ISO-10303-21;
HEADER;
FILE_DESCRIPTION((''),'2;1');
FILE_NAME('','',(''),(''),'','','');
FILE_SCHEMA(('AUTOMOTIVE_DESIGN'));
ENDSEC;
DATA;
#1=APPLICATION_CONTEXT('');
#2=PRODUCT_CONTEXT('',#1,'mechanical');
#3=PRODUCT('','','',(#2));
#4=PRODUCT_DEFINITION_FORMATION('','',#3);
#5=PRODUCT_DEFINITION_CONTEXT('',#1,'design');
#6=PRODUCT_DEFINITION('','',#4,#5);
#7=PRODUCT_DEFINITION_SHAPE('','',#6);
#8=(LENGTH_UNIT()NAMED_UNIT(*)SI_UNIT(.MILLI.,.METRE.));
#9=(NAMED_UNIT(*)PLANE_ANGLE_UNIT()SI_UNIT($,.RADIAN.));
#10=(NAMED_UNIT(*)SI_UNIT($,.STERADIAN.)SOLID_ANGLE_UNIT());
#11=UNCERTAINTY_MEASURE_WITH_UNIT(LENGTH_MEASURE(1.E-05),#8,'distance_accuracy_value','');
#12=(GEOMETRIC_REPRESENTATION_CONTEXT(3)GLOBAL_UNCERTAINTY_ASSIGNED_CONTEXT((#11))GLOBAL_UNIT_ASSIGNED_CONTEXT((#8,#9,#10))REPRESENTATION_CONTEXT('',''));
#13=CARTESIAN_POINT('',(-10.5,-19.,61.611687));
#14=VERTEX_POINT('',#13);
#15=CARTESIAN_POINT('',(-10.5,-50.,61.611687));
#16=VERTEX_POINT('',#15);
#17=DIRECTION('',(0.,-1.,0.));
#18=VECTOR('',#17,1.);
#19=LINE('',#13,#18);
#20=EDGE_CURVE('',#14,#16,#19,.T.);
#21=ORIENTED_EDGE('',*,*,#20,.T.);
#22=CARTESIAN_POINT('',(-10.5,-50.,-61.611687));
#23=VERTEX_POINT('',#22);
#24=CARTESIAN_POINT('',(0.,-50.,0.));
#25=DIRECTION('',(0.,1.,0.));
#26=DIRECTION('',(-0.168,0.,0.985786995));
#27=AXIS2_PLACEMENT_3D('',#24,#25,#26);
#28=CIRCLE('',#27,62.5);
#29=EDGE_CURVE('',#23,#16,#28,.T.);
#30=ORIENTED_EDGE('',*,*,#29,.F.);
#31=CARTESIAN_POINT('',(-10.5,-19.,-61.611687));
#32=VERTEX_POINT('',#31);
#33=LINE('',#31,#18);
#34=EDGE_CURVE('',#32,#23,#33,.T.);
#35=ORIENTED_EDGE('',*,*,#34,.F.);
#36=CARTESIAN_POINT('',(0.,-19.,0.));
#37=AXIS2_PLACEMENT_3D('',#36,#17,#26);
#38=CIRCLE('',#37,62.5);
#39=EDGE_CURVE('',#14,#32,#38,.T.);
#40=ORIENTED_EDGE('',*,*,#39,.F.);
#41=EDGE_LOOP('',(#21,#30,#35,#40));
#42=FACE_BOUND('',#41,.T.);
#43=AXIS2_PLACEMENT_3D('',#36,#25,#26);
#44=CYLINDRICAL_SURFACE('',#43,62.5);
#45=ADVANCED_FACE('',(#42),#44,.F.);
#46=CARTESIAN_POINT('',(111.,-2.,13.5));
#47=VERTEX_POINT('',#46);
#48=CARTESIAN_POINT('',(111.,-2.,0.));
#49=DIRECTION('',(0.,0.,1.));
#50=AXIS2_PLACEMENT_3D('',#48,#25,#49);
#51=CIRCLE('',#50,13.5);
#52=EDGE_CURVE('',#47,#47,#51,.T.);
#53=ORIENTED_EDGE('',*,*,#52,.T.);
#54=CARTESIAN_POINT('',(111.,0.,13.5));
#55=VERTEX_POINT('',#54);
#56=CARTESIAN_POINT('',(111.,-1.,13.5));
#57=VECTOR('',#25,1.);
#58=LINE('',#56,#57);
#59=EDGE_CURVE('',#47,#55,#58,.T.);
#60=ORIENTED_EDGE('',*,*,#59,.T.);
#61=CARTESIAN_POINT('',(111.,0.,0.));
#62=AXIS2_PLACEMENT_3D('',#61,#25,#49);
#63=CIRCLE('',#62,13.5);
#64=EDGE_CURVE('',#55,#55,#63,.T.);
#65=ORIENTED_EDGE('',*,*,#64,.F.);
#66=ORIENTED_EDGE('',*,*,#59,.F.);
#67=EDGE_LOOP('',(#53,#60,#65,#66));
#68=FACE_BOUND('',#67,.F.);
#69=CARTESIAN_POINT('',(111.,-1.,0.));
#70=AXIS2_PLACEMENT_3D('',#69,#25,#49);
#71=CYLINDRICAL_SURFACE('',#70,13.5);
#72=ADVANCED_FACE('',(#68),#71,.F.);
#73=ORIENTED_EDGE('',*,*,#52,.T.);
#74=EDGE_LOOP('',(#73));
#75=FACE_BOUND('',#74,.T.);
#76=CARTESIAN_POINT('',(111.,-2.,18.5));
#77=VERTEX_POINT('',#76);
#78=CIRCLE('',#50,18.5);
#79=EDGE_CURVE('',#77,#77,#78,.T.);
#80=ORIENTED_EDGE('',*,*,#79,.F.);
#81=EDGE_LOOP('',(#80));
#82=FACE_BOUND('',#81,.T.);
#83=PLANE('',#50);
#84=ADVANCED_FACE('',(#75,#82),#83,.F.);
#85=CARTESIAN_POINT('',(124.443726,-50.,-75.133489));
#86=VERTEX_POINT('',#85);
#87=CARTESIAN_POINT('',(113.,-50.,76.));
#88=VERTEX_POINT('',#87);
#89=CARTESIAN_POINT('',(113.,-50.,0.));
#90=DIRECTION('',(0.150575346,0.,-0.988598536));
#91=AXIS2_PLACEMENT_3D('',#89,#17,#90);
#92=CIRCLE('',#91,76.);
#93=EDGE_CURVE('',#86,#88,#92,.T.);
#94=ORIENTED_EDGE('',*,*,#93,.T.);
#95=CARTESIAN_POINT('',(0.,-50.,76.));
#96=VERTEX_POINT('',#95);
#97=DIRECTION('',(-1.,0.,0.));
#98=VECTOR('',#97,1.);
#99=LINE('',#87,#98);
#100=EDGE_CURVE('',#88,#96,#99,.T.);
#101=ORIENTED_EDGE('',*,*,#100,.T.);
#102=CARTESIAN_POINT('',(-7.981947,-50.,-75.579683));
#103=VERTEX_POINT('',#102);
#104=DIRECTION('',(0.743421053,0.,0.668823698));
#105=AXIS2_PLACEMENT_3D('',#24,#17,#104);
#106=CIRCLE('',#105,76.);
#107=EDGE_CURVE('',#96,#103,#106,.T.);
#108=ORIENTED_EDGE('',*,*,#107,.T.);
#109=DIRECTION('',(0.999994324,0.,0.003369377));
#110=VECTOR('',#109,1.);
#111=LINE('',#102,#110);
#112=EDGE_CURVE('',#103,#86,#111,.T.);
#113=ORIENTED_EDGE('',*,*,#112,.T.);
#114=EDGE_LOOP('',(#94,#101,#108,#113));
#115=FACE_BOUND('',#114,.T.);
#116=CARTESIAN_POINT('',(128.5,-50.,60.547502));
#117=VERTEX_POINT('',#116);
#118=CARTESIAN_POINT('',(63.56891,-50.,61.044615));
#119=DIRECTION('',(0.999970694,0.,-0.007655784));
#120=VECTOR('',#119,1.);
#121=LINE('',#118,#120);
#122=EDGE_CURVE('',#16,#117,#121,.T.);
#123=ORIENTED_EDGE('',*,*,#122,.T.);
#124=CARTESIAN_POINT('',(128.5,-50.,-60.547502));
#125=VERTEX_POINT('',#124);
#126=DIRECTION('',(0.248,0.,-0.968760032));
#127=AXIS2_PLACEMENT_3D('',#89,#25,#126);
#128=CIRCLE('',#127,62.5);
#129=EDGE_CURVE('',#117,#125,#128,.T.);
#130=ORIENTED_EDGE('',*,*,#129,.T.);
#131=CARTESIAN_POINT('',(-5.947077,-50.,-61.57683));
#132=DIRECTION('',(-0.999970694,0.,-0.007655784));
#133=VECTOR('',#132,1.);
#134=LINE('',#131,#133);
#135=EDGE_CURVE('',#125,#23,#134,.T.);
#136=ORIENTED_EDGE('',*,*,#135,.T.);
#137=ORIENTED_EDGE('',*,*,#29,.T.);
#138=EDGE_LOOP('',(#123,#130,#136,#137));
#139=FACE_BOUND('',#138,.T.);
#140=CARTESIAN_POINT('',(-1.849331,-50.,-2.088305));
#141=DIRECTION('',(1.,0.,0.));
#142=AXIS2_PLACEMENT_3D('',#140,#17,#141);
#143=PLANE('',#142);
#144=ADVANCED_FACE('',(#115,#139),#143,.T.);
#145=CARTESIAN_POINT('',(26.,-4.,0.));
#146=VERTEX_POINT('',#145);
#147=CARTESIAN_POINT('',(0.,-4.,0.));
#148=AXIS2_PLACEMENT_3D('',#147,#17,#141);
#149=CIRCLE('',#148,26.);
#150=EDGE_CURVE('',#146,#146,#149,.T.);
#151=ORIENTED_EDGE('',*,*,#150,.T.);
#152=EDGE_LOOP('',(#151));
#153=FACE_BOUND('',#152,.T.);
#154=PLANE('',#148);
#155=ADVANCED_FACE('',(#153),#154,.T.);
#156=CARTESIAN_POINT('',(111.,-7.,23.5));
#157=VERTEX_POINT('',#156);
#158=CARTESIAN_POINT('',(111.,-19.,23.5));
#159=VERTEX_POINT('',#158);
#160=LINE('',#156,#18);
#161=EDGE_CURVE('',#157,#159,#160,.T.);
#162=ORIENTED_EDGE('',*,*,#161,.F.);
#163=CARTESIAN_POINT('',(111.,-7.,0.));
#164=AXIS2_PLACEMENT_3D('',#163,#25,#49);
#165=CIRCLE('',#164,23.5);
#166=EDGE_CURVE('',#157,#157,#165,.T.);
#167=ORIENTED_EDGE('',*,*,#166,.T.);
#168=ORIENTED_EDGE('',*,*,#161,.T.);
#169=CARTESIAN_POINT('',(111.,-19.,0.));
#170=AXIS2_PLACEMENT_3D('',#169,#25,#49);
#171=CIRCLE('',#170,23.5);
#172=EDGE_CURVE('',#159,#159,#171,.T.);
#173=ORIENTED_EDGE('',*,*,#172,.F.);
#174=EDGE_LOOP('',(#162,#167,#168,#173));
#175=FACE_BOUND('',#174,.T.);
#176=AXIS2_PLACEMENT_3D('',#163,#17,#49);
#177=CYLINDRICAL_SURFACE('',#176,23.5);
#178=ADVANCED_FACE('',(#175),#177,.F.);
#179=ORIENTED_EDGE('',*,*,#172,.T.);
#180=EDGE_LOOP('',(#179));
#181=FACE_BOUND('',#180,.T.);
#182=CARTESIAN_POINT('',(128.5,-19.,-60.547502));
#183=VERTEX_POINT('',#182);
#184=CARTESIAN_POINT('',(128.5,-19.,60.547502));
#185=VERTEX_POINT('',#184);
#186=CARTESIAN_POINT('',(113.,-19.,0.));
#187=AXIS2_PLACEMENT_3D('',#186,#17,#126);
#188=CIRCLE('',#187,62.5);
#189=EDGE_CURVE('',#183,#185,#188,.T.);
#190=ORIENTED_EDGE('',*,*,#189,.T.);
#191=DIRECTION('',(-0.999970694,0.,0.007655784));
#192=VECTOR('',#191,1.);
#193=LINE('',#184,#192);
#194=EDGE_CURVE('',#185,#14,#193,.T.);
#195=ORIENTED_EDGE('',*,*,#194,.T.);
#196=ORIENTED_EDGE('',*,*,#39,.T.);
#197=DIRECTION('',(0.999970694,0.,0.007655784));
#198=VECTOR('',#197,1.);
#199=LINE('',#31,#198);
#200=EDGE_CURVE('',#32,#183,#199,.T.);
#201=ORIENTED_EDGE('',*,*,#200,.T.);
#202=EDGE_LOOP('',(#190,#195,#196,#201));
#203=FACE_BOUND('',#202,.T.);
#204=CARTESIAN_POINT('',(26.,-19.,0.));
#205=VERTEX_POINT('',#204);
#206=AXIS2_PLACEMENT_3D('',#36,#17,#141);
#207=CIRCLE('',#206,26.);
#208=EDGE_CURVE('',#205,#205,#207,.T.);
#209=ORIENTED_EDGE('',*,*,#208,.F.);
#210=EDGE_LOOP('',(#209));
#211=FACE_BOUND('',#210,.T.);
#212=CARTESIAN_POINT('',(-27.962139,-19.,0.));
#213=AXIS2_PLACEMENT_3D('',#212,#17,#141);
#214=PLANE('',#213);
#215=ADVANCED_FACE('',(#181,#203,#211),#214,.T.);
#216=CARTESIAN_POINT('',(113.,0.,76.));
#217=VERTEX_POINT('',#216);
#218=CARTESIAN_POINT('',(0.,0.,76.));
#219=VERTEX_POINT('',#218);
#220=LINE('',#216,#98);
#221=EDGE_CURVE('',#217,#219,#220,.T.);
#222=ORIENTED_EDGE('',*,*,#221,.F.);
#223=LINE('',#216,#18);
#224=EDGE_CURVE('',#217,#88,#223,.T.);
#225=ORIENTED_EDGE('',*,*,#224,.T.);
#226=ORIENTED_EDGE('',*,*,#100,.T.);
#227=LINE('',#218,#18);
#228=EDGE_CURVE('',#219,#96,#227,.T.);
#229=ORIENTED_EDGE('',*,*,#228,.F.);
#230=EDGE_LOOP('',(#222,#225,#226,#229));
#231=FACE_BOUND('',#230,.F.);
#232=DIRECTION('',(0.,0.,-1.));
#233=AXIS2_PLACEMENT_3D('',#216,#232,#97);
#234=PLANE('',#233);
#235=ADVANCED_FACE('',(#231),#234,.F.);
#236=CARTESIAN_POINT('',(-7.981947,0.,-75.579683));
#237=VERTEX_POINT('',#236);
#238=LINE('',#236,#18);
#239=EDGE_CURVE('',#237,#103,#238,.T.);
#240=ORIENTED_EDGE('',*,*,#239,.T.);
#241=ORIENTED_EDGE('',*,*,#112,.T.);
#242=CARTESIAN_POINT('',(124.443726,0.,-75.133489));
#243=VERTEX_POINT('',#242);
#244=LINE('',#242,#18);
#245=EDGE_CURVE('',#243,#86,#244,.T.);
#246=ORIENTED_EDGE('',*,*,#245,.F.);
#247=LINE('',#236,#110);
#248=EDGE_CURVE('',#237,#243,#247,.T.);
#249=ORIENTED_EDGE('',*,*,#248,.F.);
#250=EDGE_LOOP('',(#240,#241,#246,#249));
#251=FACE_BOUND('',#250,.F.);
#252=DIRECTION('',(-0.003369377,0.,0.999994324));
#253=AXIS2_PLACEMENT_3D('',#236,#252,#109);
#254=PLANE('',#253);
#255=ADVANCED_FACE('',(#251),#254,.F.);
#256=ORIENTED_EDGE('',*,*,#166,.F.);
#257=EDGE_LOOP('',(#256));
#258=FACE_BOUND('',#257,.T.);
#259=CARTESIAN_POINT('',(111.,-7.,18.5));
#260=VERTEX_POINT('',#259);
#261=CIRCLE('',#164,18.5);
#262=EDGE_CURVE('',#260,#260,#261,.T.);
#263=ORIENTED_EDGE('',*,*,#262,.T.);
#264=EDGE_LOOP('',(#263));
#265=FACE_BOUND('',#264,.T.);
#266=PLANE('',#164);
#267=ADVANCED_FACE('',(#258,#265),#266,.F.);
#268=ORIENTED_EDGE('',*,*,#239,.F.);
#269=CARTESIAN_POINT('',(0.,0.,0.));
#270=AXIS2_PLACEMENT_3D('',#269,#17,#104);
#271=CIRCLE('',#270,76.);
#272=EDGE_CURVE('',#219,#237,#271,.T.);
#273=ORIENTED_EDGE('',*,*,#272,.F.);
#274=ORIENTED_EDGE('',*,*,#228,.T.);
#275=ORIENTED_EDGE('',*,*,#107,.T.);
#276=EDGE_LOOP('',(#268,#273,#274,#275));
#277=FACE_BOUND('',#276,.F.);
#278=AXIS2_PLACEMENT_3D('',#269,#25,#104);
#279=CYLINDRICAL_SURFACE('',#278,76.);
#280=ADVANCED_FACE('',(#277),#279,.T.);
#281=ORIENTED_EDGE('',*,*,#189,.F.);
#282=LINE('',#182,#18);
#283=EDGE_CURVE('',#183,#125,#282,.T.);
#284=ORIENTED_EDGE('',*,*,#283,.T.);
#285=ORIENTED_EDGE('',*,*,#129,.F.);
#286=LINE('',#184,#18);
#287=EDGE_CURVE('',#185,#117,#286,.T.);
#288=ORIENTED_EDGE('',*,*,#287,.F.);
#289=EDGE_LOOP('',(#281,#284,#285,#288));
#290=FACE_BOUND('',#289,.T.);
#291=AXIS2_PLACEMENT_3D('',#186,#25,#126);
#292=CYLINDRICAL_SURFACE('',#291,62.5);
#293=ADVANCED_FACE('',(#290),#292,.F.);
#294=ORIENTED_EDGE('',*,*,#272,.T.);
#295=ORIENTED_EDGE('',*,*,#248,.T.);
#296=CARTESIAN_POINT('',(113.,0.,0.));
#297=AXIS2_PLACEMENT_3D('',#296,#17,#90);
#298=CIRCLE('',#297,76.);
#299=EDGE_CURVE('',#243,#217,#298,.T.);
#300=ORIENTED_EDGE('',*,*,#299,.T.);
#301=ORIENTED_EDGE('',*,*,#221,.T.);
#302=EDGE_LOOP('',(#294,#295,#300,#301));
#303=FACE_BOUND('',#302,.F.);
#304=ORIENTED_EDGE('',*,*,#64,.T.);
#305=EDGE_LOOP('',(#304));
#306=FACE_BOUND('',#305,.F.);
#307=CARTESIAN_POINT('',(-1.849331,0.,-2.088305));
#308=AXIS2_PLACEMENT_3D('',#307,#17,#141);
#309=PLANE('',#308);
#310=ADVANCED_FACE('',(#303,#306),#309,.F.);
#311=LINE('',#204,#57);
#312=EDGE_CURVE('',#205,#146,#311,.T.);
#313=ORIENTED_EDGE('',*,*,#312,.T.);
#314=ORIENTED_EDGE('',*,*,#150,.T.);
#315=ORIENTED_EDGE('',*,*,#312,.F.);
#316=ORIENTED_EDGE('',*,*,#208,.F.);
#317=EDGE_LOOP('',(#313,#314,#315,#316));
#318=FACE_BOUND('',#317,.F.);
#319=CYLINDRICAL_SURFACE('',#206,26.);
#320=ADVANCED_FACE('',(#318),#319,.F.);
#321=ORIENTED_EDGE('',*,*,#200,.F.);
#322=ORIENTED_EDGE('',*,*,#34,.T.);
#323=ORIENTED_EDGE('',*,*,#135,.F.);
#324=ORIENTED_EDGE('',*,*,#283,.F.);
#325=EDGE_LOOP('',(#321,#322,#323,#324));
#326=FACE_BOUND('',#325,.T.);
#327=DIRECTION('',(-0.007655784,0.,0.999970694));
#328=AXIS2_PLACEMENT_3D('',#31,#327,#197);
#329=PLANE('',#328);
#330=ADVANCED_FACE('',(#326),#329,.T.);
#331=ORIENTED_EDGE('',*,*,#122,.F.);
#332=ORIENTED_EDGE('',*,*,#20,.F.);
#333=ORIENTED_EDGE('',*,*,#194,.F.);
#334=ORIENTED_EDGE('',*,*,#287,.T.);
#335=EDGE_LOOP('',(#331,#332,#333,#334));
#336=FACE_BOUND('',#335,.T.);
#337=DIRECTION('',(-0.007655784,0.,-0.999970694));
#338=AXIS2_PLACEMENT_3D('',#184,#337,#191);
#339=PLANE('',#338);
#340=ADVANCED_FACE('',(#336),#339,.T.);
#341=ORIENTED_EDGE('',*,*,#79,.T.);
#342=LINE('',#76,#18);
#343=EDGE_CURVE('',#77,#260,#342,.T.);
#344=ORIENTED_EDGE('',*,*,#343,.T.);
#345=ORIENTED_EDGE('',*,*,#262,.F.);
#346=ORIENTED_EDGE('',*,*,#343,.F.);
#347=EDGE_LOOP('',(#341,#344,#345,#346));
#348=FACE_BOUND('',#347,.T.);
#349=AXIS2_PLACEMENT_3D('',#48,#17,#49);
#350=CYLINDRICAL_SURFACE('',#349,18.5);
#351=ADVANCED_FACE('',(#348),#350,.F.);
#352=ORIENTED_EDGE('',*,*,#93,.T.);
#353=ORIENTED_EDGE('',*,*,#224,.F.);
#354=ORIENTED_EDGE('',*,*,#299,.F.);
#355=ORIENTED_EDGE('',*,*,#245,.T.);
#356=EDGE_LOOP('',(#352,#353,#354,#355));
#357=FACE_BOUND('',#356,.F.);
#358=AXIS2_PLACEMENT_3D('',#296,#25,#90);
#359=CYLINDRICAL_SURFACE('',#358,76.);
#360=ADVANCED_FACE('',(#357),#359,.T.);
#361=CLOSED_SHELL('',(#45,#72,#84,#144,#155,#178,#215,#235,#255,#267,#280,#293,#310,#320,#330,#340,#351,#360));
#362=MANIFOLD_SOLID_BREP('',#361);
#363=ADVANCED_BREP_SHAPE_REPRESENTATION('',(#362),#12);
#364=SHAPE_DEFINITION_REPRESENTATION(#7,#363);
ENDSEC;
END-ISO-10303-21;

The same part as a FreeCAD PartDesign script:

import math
import FreeCAD as App
import Part
import Sketcher


def add_polygon(sketch, points):
    """Adds a closed chain of lines whose ends are joined by coincident constraints."""
    first, n = sketch.GeometryCount, len(points)
    for a, b in zip(points, points[1:] + points[:1]):
        sketch.addGeometry(Part.LineSegment(App.Vector(*a, 0), App.Vector(*b, 0)), False)
    for i in range(n):
        sketch.addConstraint(Sketcher.Constraint("Coincident", first + i, 2, first + (i + 1) % n, 1))

doc = App.newDocument("Part")
body = doc.addObject("PartDesign::Body", "Body")

# Sketch on XZ plane
sketch1 = body.newObject("Sketcher::SketchObject", "Sketch")
sketch1.AttachmentSupport = (doc.getObject("XZ_Plane"), [""])
sketch1.MapMode = "FlatFace"
sketch1.addGeometry([
    Part.ArcOfCircle(Part.Circle(App.Vector(113, 0, 0), App.Vector(0, 0, 1), 76), math.radians(-81), math.radians(90)),
    Part.LineSegment(App.Vector(113, 76, 0), App.Vector(0, 76, 0)),
    Part.ArcOfCircle(Part.Circle(App.Vector(0, 0, 0), App.Vector(0, 0, 1), 76), math.radians(90), math.radians(264)),
    Part.LineSegment(App.Vector(-8, -76, 0), App.Vector(124, -75, 0)),
], False)
sketch1.addConstraint([
    Sketcher.Constraint("Tangent", 0, 2, 1, 1),
    Sketcher.Constraint("Tangent", 1, 2, 2, 1),
    Sketcher.Constraint("Coincident", 2, 2, 3, 1),
    Sketcher.Constraint("Coincident", 3, 2, 0, 1),
    Sketcher.Constraint("Horizontal", 1),
    Sketcher.Constraint("Coincident", 2, 3, -1, 1),
    Sketcher.Constraint("Equal", 0, 2),
    Sketcher.Constraint("Radius", 0, 76.0),
    Sketcher.Constraint("DistanceX", 1, 2, 1, 1, 113.0),
    Sketcher.Constraint("DistanceY", 3, 2, -1, 1, 75.133489),
    Sketcher.Constraint("Distance", 3, 132.426425),
])
pad1 = body.newObject("PartDesign::Pad", "Pad")
pad1.Profile = sketch1
pad1.Length = 50

# Sketch on XZ plane
sketch2 = body.newObject("Sketcher::SketchObject", "Sketch001")
sketch2.AttachmentSupport = (doc.getObject("XZ_Plane"), [""])
sketch2.MapMode = "FlatFace"
sketch2.AttachmentOffset = App.Placement(App.Vector(0, 0, 19), App.Rotation())
sketch2.addGeometry([
    Part.ArcOfCircle(Part.Circle(App.Vector(0, 0, 0), App.Vector(0, 0, 1), 62), math.radians(100), math.radians(260)),
    Part.LineSegment(App.Vector(-10, -62, 0), App.Vector(128, -61, 0)),
    Part.ArcOfCircle(Part.Circle(App.Vector(113, 0, 0), App.Vector(0, 0, 1), 62), math.radians(-76), math.radians(76)),
    Part.LineSegment(App.Vector(128, 61, 0), App.Vector(-10, 62, 0)),
], False)
sketch2.addConstraint([
    Sketcher.Constraint("Coincident", 0, 2, 1, 1),
    Sketcher.Constraint("Coincident", 1, 2, 2, 1),
    Sketcher.Constraint("Coincident", 2, 2, 3, 1),
    Sketcher.Constraint("Coincident", 3, 2, 0, 1),
    Sketcher.Constraint("Coincident", 0, 3, -1, 1),
    Sketcher.Constraint("Equal", 0, 2),
    Sketcher.Constraint("Symmetric", 1, 2, 2, 2, -1),
    Sketcher.Constraint("Vertical", 0, 2, 3, 2),
    Sketcher.Constraint("Radius", 0, 62.5),
    Sketcher.Constraint("DistanceX", -1, 1, 2, 3, 113.0),
    Sketcher.Constraint("DistanceX", 0, 2, 1, 2, 139.0),
    Sketcher.Constraint("DistanceX", 0, 2, -1, 1, 10.5),
])
pocket1 = body.newObject("PartDesign::Pocket", "Pocket")
pocket1.Profile = sketch2
pocket1.Length = 47
pocket1.Reversed = True

# Sketch on XZ plane
sketch3 = body.newObject("Sketcher::SketchObject", "Sketch002")
sketch3.AttachmentSupport = (doc.getObject("XZ_Plane"), [""])
sketch3.MapMode = "FlatFace"
sketch3.AttachmentOffset = App.Placement(App.Vector(0, 0, 19), App.Rotation())
sketch3.addGeometry(Part.Circle(App.Vector(0, 0, 0), App.Vector(0, 0, 1), 26), False)
sketch3.addConstraint([
    Sketcher.Constraint("Coincident", 0, 3, -1, 1),
    Sketcher.Constraint("Diameter", 0, 52.0),
])
pocket2 = body.newObject("PartDesign::Pocket", "Pocket001")
pocket2.Profile = sketch3
pocket2.Length = 15

# Sketch on YZ plane
sketch4 = body.newObject("Sketcher::SketchObject", "Sketch003")
sketch4.AttachmentSupport = (doc.getObject("YZ_Plane"), [""])
sketch4.MapMode = "FlatFace"
sketch4.AttachmentOffset = App.Placement(App.Vector(0, 0, 111), App.Rotation())
add_polygon(sketch4, [(0, 0), (0, 13.5), (-2, 13.5), (-2, 18.5), (-7, 18.5), (-7, 23.5), (-19, 23.5), (-19, 0)])  # lines 0-7
sketch4.addConstraint([
    Sketcher.Constraint("Vertical", 0),
    Sketcher.Constraint("Horizontal", 1),
    Sketcher.Constraint("Vertical", 2),
    Sketcher.Constraint("Horizontal", 3),
    Sketcher.Constraint("Vertical", 4),
    Sketcher.Constraint("Horizontal", 5),
    Sketcher.Constraint("Vertical", 6),
    Sketcher.Constraint("Horizontal", 7),
    Sketcher.Constraint("Coincident", 7, 2, -1, 1),
    Sketcher.Constraint("Equal", 3, 2),
    Sketcher.Constraint("Equal", 2, 4),
    Sketcher.Constraint("DistanceX", 1, 2, 1, 1, 2.0),
    Sketcher.Constraint("DistanceX", 3, 2, 3, 1, 5.0),
    Sketcher.Constraint("DistanceX", 5, 2, 5, 1, 12.0),
    Sketcher.Constraint("DistanceY", 0, 1, 0, 2, 13.5),
])
groove = body.newObject("PartDesign::Groove", "Groove")
groove.Profile = sketch4
groove.ReferenceAxis = (sketch4, ["H_Axis"])
groove.Angle = 360

doc.recompute()
